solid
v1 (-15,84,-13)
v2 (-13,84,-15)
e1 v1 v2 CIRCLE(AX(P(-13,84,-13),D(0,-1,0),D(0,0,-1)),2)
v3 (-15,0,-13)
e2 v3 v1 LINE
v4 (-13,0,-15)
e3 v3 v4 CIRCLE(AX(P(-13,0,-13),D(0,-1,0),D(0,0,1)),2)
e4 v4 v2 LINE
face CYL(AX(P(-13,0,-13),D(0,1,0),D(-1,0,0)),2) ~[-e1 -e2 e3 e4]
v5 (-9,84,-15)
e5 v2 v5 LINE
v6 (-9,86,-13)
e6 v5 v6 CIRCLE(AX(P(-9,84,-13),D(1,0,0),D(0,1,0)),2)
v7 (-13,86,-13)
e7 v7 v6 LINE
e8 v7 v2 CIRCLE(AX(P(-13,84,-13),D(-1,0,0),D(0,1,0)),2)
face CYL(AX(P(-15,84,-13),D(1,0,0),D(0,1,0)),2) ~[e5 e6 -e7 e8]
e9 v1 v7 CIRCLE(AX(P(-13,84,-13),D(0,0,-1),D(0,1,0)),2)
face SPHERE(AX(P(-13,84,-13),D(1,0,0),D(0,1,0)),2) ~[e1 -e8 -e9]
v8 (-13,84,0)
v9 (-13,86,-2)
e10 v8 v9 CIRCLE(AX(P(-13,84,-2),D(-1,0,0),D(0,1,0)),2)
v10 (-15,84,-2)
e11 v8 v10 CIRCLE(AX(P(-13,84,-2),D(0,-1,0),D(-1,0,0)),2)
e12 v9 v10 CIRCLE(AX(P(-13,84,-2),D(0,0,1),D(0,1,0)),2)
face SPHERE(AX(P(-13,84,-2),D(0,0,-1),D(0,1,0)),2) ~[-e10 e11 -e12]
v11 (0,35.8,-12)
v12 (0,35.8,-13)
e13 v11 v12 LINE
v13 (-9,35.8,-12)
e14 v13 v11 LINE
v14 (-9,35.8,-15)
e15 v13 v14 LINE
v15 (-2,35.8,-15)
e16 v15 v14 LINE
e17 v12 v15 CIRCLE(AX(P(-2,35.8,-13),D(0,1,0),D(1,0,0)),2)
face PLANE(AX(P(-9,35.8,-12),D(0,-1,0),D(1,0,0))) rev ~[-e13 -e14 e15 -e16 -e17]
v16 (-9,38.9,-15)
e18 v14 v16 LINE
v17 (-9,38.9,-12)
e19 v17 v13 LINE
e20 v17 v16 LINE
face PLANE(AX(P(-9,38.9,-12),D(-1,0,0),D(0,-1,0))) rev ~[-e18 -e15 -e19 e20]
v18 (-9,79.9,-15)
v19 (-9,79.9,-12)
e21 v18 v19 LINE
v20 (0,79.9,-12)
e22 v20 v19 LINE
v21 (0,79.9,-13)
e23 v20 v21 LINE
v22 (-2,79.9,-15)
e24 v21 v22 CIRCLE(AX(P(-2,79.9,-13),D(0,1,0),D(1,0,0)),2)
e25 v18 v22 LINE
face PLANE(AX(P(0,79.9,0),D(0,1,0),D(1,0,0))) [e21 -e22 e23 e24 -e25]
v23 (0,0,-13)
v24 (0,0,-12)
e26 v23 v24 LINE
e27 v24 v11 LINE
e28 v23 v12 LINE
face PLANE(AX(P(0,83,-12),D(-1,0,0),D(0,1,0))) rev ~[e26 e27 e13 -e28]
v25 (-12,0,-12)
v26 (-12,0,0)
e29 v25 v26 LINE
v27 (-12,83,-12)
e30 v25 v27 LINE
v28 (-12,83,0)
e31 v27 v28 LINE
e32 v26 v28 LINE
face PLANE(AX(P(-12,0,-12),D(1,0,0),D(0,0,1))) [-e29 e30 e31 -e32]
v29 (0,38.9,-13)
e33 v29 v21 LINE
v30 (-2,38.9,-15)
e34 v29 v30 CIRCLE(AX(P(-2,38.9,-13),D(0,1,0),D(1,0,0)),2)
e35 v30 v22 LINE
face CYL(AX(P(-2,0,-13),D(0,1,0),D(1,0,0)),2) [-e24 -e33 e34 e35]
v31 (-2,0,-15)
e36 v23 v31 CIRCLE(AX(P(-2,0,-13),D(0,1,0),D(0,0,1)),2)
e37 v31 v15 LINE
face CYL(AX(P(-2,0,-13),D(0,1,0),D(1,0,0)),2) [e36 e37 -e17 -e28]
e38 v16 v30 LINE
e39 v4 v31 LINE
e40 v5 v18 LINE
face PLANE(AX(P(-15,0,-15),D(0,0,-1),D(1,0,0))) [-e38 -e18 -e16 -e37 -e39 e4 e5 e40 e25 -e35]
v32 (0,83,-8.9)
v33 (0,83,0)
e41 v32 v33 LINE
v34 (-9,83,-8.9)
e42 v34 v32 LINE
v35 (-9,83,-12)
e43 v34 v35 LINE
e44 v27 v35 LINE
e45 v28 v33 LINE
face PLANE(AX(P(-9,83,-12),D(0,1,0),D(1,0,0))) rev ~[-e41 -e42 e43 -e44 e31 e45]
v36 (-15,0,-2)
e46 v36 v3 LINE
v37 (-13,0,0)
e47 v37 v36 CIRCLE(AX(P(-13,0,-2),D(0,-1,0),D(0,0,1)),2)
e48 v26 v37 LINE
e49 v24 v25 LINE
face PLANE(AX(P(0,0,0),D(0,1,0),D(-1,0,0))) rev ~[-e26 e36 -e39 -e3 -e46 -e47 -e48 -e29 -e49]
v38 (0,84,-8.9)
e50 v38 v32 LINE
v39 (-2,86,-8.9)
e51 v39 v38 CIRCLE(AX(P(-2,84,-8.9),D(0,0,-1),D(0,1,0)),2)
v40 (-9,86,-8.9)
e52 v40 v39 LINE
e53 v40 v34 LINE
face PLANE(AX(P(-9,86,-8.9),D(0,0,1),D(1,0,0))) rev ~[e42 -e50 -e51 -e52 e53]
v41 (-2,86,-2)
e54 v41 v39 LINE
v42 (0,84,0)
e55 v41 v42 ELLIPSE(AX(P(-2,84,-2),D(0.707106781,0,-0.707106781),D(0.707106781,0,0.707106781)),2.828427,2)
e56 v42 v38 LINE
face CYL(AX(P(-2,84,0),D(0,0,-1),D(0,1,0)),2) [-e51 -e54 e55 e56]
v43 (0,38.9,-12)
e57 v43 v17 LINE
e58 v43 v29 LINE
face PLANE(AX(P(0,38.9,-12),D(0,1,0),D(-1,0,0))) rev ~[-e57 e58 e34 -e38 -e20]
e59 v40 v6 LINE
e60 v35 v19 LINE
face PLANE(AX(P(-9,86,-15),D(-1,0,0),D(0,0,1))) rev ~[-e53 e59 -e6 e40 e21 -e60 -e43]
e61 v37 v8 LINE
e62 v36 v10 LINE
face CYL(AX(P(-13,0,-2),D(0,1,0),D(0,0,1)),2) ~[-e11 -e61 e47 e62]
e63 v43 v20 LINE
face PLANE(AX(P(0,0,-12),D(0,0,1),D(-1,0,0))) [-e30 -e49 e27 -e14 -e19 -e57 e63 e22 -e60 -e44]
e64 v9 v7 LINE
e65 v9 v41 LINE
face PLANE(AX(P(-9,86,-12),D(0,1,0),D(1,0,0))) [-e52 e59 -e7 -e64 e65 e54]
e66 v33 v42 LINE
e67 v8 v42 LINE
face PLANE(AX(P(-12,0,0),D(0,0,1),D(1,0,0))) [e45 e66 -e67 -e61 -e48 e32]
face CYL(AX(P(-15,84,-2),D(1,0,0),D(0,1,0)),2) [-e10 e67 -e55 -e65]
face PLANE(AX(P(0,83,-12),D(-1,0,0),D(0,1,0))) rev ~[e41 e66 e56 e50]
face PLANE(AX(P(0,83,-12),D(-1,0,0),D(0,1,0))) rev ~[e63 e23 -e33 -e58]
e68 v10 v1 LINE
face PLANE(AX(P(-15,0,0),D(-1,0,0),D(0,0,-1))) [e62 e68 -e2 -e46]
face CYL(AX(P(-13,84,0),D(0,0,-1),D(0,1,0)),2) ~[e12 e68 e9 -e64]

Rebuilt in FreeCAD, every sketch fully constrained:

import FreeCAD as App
import Part
import Sketcher
Q = App.Units.Quantity


def edges_at(feature, points):
    """Names of the edges that pass closest to the given points."""
    edges = feature.Shape.Edges
    near = lambda p: min(range(len(edges)), key=lambda i: edges[i].distToShape(Part.Vertex(*p))[0])
    return sorted({f"Edge{near(p) + 1}" for p in points})


def add_polygon(sketch, points):
    """Adds a closed chain of lines whose ends are joined by coincident constraints."""
    first, n = sketch.GeometryCount, len(points)
    for a, b in zip(points, points[1:] + points[:1]):
        sketch.addGeometry(Part.LineSegment(App.Vector(*a, 0), App.Vector(*b, 0)), False)
    for i in range(n):
        sketch.addConstraint(Sketcher.Constraint("Coincident", first + i, 2, first + (i + 1) % n, 1))

doc = App.newDocument("Part")
body = doc.addObject("PartDesign::Body", "Body")

# Sketch on XZ plane
sketch1 = doc.addObject("Sketcher::SketchObject", "Sketch")
body.addObject(sketch1)
sketch1.AttachmentSupport = (doc.XZ_Plane, [""])
sketch1.MapMode = "FlatFace"
add_polygon(sketch1, [(-15, -15), (-15, 0), (-12, 0), (-12, -12), (0, -12), (0, -15)])  # lines 0-5
sketch1.addConstraint([
    Sketcher.Constraint("Vertical", 0),
    Sketcher.Constraint("Horizontal", 1),
    Sketcher.Constraint("Vertical", 2),
    Sketcher.Constraint("Horizontal", 3),
    Sketcher.Constraint("Vertical", 4),
    Sketcher.Constraint("Horizontal", 5),
    Sketcher.Constraint("PointOnObject", 0, 2, -1),
    Sketcher.Constraint("PointOnObject", 3, 2, -2),
    Sketcher.Constraint("Equal", 5, 0),
    Sketcher.Constraint("Equal", 3, 2),
    Sketcher.Constraint("DistanceX", 1, 1, 1, 2, Q("3 mm")),
    Sketcher.Constraint("DistanceX", 3, 1, 3, 2, Q("12 mm")),
])
pad1 = doc.addObject("PartDesign::Pad", "Pad")
body.addObject(pad1)
pad1.Profile = sketch1
pad1.Length = 86
pad1.Reversed = True

# Sketch on YZ plane
sketch2 = doc.addObject("Sketcher::SketchObject", "Sketch001")
body.addObject(sketch2)
sketch2.AttachmentSupport = (doc.YZ_Plane, [""])
sketch2.MapMode = "FlatFace"
sketch2.AttachmentOffset = App.Placement(App.Vector(0, 0, -12), App.Rotation())
add_polygon(sketch2, [(86, 0), (83, 0), (83, -12), (86, -12)])  # lines 0-3
sketch2.addConstraint([
    Sketcher.Constraint("Horizontal", 0),
    Sketcher.Constraint("Vertical", 1),
    Sketcher.Constraint("Horizontal", 2),
    Sketcher.Constraint("Vertical", 3),
    Sketcher.Constraint("PointOnObject", 0, 2, -1),
    Sketcher.Constraint("DistanceX", 0, 2, 0, 1, Q("3 mm")),
    Sketcher.Constraint("DistanceY", 1, 2, 1, 1, Q("12 mm")),
    Sketcher.Constraint("DistanceX", -1, 1, 0, 2, Q("83 mm")),
])
pad2 = doc.addObject("PartDesign::Pad", "Pad001")
body.addObject(pad2)
pad2.Profile = sketch2
pad2.Length = 3

# Sketch on XY plane
sketch3 = doc.addObject("Sketcher::SketchObject", "Sketch002")
body.addObject(sketch3)
sketch3.AttachmentSupport = (doc.XY_Plane, [""])
sketch3.MapMode = "FlatFace"
sketch3.AttachmentOffset = App.Placement(App.Vector(0, 0, -12), App.Rotation())
add_polygon(sketch3, [(0, 86), (-9, 86), (-9, 83), (0, 83)])  # lines 0-3
sketch3.addConstraint([
    Sketcher.Constraint("Horizontal", 0),
    Sketcher.Constraint("Vertical", 1),
    Sketcher.Constraint("Horizontal", 2),
    Sketcher.Constraint("Vertical", 3),
    Sketcher.Constraint("PointOnObject", 2, 2, -2),
    Sketcher.Constraint("DistanceX", 0, 2, 0, 1, Q("9 mm")),
    Sketcher.Constraint("DistanceY", 1, 2, 1, 1, Q("3 mm")),
    Sketcher.Constraint("DistanceY", -1, 1, 0, 2, Q("86 mm")),
])
pad3 = doc.addObject("PartDesign::Pad", "Pad002")
body.addObject(pad3)
pad3.Profile = sketch3
pad3.Length = 12
doc.recompute()

fillet = doc.addObject("PartDesign::Fillet", "Fillet")
body.addObject(fillet)
fillet.Base = (pad3, edges_at(pad3, [
    (-7.5, 86, -15),
    (-15, 86, -7.5),
    (-15, 43, -15),
    (0, 43, -15),
    (-7.5, 86, 0),
    (0, 86, -7.5),
    (-15, 43, 0),
]))
fillet.Radius = 2

# Sketch on XZ plane
sketch4 = doc.addObject("Sketcher::SketchObject", "Sketch003")
body.addObject(sketch4)
sketch4.AttachmentSupport = (doc.XZ_Plane, [""])
sketch4.MapMode = "FlatFace"
sketch4.AttachmentOffset = App.Placement(App.Vector(0, 0, -86), App.Rotation())
add_polygon(sketch4, [(0, -9), (0, -15), (-9, -15), (-9, -9)])  # lines 0-3
sketch4.addConstraint([
    Sketcher.Constraint("Vertical", 0),
    Sketcher.Constraint("Horizontal", 1),
    Sketcher.Constraint("Vertical", 2),
    Sketcher.Constraint("Horizontal", 3),
    Sketcher.Constraint("PointOnObject", 0, 2, -2),
    Sketcher.Constraint("DistanceX", 1, 2, 1, 1, Q("9 mm")),
    Sketcher.Constraint("DistanceY", 0, 2, 0, 1, Q("6.1 mm")),
    Sketcher.Constraint("DistanceY", 0, 2, -1, 1, Q("15 mm")),
])
pocket1 = doc.addObject("PartDesign::Pocket", "Pocket")
body.addObject(pocket1)
pocket1.Profile = sketch4
pocket1.Length = 6.1
pocket1.Reversed = True

# Sketch on XY plane
sketch5 = doc.addObject("Sketcher::SketchObject", "Sketch004")
body.addObject(sketch5)
sketch5.AttachmentSupport = (doc.XY_Plane, [""])
sketch5.MapMode = "FlatFace"
sketch5.AttachmentOffset = App.Placement(App.Vector(0, 0, -12), App.Rotation())
add_polygon(sketch5, [(0, 38.9), (-9, 38.9), (-9, 35.8), (0, 35.8)])  # lines 0-3
sketch5.addConstraint([
    Sketcher.Constraint("Horizontal", 0),
    Sketcher.Constraint("Vertical", 1),
    Sketcher.Constraint("Horizontal", 2),
    Sketcher.Constraint("Vertical", 3),
    Sketcher.Constraint("PointOnObject", 2, 2, -2),
    Sketcher.Constraint("DistanceY", 1, 2, 1, 1, Q("3.1 mm")),
    Sketcher.Constraint("DistanceX", 0, 2, 0, 1, Q("9 mm")),
    Sketcher.Constraint("DistanceY", -1, 1, 0, 2, Q("38.9 mm")),
])
pocket2 = doc.addObject("PartDesign::Pocket", "Pocket001")
body.addObject(pocket2)
pocket2.Profile = sketch5
pocket2.Type = "ThroughAll"

doc.recompute()
